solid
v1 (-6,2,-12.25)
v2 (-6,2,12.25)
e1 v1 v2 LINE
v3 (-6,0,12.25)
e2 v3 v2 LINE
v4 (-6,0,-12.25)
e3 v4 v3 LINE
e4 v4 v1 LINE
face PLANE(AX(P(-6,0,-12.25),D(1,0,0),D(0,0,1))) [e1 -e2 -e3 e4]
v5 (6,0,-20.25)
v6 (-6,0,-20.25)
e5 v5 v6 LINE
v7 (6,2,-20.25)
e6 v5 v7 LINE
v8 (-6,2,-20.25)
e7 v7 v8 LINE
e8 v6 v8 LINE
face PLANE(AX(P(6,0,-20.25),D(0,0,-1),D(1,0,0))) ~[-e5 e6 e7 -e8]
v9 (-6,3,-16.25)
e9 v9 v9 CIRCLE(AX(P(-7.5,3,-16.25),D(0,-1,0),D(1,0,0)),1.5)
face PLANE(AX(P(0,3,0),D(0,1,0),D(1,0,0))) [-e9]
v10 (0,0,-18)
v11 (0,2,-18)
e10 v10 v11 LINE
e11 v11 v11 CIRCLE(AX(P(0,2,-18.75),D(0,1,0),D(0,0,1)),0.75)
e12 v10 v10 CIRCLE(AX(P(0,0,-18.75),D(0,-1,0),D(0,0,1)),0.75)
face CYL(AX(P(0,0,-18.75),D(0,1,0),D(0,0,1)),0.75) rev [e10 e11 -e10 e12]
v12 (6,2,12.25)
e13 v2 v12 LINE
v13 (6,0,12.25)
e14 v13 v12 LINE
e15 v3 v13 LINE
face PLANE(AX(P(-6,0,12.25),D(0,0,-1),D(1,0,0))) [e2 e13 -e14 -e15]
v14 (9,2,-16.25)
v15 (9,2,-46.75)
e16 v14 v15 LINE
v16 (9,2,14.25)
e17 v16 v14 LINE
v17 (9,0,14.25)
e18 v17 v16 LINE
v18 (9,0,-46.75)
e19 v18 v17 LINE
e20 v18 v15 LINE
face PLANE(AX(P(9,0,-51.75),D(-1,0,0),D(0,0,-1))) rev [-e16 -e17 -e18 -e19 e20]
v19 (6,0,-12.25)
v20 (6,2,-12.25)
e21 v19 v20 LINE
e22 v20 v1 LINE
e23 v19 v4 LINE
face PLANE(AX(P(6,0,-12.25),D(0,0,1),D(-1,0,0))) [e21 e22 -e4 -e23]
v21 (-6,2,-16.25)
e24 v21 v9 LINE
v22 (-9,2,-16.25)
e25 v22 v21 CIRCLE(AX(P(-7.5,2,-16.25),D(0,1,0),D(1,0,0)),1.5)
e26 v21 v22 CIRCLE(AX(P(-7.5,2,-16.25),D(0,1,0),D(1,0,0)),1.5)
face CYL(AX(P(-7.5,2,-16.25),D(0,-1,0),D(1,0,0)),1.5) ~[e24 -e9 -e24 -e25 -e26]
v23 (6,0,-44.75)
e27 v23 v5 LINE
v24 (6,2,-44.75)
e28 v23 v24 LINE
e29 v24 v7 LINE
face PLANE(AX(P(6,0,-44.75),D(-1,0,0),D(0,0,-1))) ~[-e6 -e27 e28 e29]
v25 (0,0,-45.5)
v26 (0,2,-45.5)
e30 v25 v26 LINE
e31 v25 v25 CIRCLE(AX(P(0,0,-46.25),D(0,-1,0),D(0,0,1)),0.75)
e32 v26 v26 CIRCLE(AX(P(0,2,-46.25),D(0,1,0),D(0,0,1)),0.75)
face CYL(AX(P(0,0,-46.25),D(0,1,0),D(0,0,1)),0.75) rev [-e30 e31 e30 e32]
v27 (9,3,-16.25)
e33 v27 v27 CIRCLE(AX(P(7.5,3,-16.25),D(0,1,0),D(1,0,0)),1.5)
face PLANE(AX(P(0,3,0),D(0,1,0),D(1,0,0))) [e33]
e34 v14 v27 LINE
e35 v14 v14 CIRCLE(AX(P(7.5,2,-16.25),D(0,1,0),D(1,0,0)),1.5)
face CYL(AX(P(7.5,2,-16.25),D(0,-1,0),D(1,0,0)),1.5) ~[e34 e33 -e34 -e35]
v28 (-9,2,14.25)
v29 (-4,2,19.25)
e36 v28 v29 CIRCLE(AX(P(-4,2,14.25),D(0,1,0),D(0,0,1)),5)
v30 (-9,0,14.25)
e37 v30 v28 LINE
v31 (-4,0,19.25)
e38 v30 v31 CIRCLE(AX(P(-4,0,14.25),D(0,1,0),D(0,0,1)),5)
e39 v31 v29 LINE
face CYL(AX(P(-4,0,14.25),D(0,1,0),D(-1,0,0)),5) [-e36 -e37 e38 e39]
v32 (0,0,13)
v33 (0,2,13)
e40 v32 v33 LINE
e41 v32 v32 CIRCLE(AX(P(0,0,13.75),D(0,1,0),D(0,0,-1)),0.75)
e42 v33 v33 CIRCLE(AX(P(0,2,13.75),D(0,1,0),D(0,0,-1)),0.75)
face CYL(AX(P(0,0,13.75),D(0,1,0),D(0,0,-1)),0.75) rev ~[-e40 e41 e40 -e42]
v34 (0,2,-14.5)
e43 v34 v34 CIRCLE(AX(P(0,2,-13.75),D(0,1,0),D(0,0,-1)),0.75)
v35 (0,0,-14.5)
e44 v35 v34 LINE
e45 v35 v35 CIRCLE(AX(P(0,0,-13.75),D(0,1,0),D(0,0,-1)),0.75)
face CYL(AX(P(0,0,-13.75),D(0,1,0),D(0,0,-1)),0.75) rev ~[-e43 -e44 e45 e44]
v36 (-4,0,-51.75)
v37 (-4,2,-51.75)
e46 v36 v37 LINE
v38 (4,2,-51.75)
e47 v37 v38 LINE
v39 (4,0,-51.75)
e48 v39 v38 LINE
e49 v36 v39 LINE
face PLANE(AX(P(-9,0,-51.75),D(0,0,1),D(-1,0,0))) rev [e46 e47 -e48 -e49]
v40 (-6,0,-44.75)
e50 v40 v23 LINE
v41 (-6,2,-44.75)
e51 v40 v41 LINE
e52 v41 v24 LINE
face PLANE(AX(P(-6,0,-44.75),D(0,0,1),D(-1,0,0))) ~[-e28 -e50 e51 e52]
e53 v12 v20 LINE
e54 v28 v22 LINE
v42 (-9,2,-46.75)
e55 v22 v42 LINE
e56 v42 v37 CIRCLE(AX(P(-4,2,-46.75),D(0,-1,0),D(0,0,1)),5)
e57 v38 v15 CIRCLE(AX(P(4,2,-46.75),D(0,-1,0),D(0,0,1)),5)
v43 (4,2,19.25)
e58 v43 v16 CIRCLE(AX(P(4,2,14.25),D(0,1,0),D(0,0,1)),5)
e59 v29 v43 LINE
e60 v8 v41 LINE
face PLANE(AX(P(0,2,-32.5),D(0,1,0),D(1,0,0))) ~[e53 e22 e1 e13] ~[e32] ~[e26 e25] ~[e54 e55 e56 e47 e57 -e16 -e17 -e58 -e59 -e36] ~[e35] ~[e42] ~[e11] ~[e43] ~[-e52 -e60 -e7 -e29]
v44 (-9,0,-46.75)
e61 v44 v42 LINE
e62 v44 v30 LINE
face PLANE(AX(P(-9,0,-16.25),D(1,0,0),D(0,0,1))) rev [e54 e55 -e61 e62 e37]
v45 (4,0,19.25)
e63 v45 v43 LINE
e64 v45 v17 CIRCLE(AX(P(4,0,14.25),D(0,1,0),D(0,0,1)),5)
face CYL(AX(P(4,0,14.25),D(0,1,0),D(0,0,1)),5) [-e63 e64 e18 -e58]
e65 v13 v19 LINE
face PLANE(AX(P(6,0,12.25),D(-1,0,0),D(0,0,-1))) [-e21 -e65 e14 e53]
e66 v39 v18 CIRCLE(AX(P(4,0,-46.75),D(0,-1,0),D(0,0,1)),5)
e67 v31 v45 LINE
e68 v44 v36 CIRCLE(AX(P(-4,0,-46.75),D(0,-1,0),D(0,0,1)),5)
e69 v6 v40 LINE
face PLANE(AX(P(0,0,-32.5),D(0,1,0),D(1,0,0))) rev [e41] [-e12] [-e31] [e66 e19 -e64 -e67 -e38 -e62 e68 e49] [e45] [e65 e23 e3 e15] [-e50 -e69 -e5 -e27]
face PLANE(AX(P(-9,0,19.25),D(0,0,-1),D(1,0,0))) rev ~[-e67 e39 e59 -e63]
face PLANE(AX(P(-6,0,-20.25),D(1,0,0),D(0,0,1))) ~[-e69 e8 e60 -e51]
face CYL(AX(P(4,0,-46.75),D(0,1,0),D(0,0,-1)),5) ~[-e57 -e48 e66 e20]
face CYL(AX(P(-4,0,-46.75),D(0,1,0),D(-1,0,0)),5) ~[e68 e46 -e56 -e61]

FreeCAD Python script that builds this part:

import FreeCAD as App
import Part
import Sketcher
Q = App.Units.Quantity


def edges_at(feature, points):
    """Names of the edges that pass closest to the given points."""
    edges = feature.Shape.Edges
    near = lambda p: min(range(len(edges)), key=lambda i: edges[i].distToShape(Part.Vertex(*p))[0])
    return sorted({f"Edge{near(p) + 1}" for p in points})

doc = App.newDocument("Part")
params = doc.addObject("Spreadsheet::Sheet", "Params")
for row, (alias, value) in enumerate([
    ("sketch1_width", "12 mm"),
    ("sketch1_height", "24.5 mm"),
    ("pad1_length", "2 mm"),
    ("sketch2_diameter", "1.5 mm"),
    ("hole_diameter", "1.5 mm"),
    ("fillet_radius", "5 mm"),
    ("sketch3_diameter", "3 mm"),
    ("pad2_length", "1 mm"),
], start=1):
    params.set(f"A{row}", alias)
    params.set(f"B{row}", "=" + value)
    params.setAlias(f"B{row}", alias)

body = doc.addObject("PartDesign::Body", "Body")

sketch1 = body.newObject("Sketcher::SketchObject", "Sketch")
sketch1.AttachmentSupport = (doc.getObject("XZ_Plane"), [""])
sketch1.MapMode = "FlatFace"
sketch1.addGeometry(Part.LineSegment(App.Vector(-9, -16, 0), App.Vector(-9, 19, 0)), False)
sketch1.addGeometry(Part.LineSegment(App.Vector(-9, 19, 0), App.Vector(9, 19, 0)), False)
sketch1.addGeometry(Part.LineSegment(App.Vector(9, 19, 0), App.Vector(9, -16, 0)), False)
sketch1.addGeometry(Part.LineSegment(App.Vector(9, -16, 0), App.Vector(-9, -16, 0)), False)
sketch1.addGeometry(Part.LineSegment(App.Vector(6, 12, 0), App.Vector(-6, 12, 0)), False)
sketch1.addGeometry(Part.LineSegment(App.Vector(-6, 12, 0), App.Vector(-6, -12, 0)), False)
sketch1.addGeometry(Part.LineSegment(App.Vector(-6, -12, 0), App.Vector(6, -12, 0)), False)
sketch1.addGeometry(Part.LineSegment(App.Vector(6, -12, 0), App.Vector(6, 12, 0)), False)
sketch1.addConstraint(Sketcher.Constraint("Coincident", 0, 2, 1, 1))
sketch1.addConstraint(Sketcher.Constraint("Coincident", 1, 2, 2, 1))
sketch1.addConstraint(Sketcher.Constraint("Coincident", 2, 2, 3, 1))
sketch1.addConstraint(Sketcher.Constraint("Coincident", 3, 2, 0, 1))
sketch1.addConstraint(Sketcher.Constraint("Coincident", 4, 2, 5, 1))
sketch1.addConstraint(Sketcher.Constraint("Coincident", 5, 2, 6, 1))
sketch1.addConstraint(Sketcher.Constraint("Coincident", 6, 2, 7, 1))
sketch1.addConstraint(Sketcher.Constraint("Coincident", 7, 2, 4, 1))
sketch1.addConstraint(Sketcher.Constraint("Vertical", 0))
sketch1.addConstraint(Sketcher.Constraint("Horizontal", 1))
sketch1.addConstraint(Sketcher.Constraint("Vertical", 2))
sketch1.addConstraint(Sketcher.Constraint("Horizontal", 3))
sketch1.addConstraint(Sketcher.Constraint("Horizontal", 4))
sketch1.addConstraint(Sketcher.Constraint("Vertical", 5))
sketch1.addConstraint(Sketcher.Constraint("Horizontal", 6))
sketch1.addConstraint(Sketcher.Constraint("Vertical", 7))
sketch1.addConstraint(Sketcher.Constraint("Symmetric", 4, 2, 6, 2, -1, 1))
sketch1.addConstraint(Sketcher.Constraint("DistanceX", 4, 2, 4, 1, Q("12 mm")))
sketch1.addConstraint(Sketcher.Constraint("DistanceY", 5, 2, 5, 1, Q("24.5 mm")))
sketch1.addConstraint(Sketcher.Constraint("DistanceX", 0, 2, 4, 2, Q("3 mm")))
sketch1.addConstraint(Sketcher.Constraint("DistanceY", 4, 2, 0, 2, Q("7 mm")))
sketch1.addConstraint(Sketcher.Constraint("DistanceY", 3, 2, 5, 2, Q("4 mm")))
sketch1.addConstraint(Sketcher.Constraint("DistanceX", 6, 2, 2, 2, Q("3 mm")))
sketch1.setExpression("Constraints[17]", "Params.sketch1_width")
sketch1.setExpression("Constraints[18]", "Params.sketch1_height")
pad1 = body.newObject("PartDesign::Pad", "Pad")
pad1.Profile = sketch1
pad1.setExpression("Length", "Params.pad1_length")
pad1.Reversed = True

sketch2 = body.newObject("Sketcher::SketchObject", "Sketch001")
sketch2.AttachmentSupport = (doc.getObject("XZ_Plane"), [""])
sketch2.MapMode = "FlatFace"
sketch2.addGeometry(Part.Circle(App.Vector(0, -13.8, 0), App.Vector(0, 0, 1), 0.8), False)
sketch2.addGeometry(Part.Circle(App.Vector(0, 13.8, 0), App.Vector(0, 0, 1), 0.8), False)
sketch2.addConstraint(Sketcher.Constraint("Equal", 0, 1))
sketch2.addConstraint(Sketcher.Constraint("Symmetric", 0, 3, 1, 3, -1, 1))
sketch2.addConstraint(Sketcher.Constraint("PointOnObject", 0, 3, -2))
sketch2.addConstraint(Sketcher.Constraint("Diameter", 0, Q("1.5 mm")))
sketch2.addConstraint(Sketcher.Constraint("DistanceY", 0, 3, 1, 3, Q("27.5 mm")))
sketch2.setExpression("Constraints[3]", "Params.sketch2_diameter")
doc.recompute()
hole = body.newObject("PartDesign::Hole", "Hole")
hole.Profile = sketch2
hole.ThreadType = "None"
hole.setExpression("Diameter", "Params.hole_diameter")
hole.DepthType = "ThroughAll"
doc.recompute()

datumplane = body.newObject("PartDesign::Plane", "DatumPlane")
datumplane.AttachmentSupport = (doc.getObject("XY_Plane"), [""])
datumplane.MapMode = "FlatFace"
datumplane.AttachmentOffset = App.Placement(App.Vector(0, 0, -16.25), App.Rotation())
mirrored = body.newObject("PartDesign::Mirrored", "Mirrored")
mirrored.Originals = [pad1, hole]
mirrored.MirrorPlane = (datumplane, [""])
body.Tip = mirrored
doc.recompute()

fillet = body.newObject("PartDesign::Fillet", "Fillet")
fillet.Base = (mirrored, edges_at(mirrored, [
    (-9, 1, 19.25),
    (9, 1, 19.25),
    (9, 1, -51.75),
    (-9, 1, -51.75),
]))
fillet.setExpression("Radius", "Params.fillet_radius")

sketch3 = body.newObject("Sketcher::SketchObject", "Sketch002")
sketch3.AttachmentSupport = (doc.getObject("XZ_Plane"), [""])
sketch3.MapMode = "FlatFace"
sketch3.AttachmentOffset = App.Placement(App.Vector(0, 0, -2), App.Rotation())
sketch3.addGeometry(Part.Circle(App.Vector(7.5, -16.2, 0), App.Vector(0, 0, 1), 1.5), False)
sketch3.addGeometry(Part.Circle(App.Vector(-7.5, -16.2, 0), App.Vector(0, 0, 1), 1.5), False)
sketch3.addConstraint(Sketcher.Constraint("Equal", 0, 1))
sketch3.addConstraint(Sketcher.Constraint("Symmetric", 0, 3, 1, 3, -2))
sketch3.addConstraint(Sketcher.Constraint("Diameter", 0, Q("3 mm")))
sketch3.addConstraint(Sketcher.Constraint("DistanceX", 1, 3, 0, 3, Q("15 mm")))
sketch3.addConstraint(Sketcher.Constraint("DistanceY", 0, 3, -1, 1, Q("16.25 mm")))
sketch3.setExpression("Constraints[2]", "Params.sketch3_diameter")
pad2 = body.newObject("PartDesign::Pad", "Pad001")
pad2.Profile = sketch3
pad2.setExpression("Length", "Params.pad2_length")
pad2.Reversed = True

doc.recompute()
